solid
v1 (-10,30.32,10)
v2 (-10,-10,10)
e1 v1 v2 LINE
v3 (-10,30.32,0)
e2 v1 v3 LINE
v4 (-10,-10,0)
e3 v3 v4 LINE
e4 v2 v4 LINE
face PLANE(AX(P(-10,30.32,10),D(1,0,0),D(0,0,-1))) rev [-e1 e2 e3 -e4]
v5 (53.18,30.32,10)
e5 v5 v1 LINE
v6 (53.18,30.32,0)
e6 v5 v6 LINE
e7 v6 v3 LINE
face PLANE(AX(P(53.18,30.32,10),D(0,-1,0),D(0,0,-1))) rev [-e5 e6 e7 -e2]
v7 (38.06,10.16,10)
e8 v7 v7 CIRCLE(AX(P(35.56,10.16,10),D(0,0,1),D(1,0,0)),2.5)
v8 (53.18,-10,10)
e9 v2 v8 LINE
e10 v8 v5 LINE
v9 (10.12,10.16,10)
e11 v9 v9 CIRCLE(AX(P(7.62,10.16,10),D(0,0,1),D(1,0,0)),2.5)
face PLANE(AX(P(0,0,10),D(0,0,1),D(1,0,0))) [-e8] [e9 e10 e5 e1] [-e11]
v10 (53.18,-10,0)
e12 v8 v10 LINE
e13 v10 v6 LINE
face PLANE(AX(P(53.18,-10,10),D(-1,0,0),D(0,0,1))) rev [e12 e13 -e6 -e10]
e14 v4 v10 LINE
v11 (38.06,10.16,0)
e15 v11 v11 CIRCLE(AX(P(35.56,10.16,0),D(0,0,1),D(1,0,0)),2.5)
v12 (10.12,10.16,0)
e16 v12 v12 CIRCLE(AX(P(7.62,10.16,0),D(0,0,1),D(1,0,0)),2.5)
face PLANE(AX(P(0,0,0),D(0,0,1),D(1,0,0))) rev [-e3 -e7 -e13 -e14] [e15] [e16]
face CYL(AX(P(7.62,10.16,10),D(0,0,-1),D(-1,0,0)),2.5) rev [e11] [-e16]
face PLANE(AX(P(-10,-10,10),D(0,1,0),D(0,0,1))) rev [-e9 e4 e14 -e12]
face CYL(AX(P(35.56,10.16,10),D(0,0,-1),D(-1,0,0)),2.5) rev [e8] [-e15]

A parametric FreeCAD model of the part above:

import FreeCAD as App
import Part
import Sketcher

V = App.Vector


def add_polygon(sketch, points):
    """Adds a closed chain of lines whose ends are joined by coincident constraints."""
    first, n = sketch.GeometryCount, len(points)
    for a, b in zip(points, points[1:] + points[:1]):
        sketch.addGeometry(Part.LineSegment(App.Vector(*a, 0), App.Vector(*b, 0)), False)
    for i in range(n):
        sketch.addConstraint(Sketcher.Constraint("Coincident", first + i, 2, first + (i + 1) % n, 1))

doc = App.newDocument("Part")
body = doc.addObject("PartDesign::Body", "Body")

# Sketch on XY plane
sketch1 = body.newObject("Sketcher::SketchObject", "Sketch")
sketch1.AttachmentSupport = (doc.getObject("XY_Plane"), [""])
sketch1.MapMode = "FlatFace"
add_polygon(sketch1, [(-10, 30.3), (-10, -10), (53.2, -10), (53.2, 30.3)])  # lines 0-3
sketch1.addGeometry(Part.Circle(V(7.6, 10.2, 0), V(0, 0, 1), 2.5), False)  # 4
sketch1.addGeometry(Part.Circle(V(35.6, 10.2, 0), V(0, 0, 1), 2.5), False)  # 5
sketch1.addConstraint([
    Sketcher.Constraint("Vertical", 0),
    Sketcher.Constraint("Horizontal", 1),
    Sketcher.Constraint("Vertical", 2),
    Sketcher.Constraint("Horizontal", 3),
    Sketcher.Constraint("Equal", 4, 5),
    Sketcher.Constraint("Horizontal", 4, 3, 5, 3),
    Sketcher.Constraint("Diameter", 4, 5.0),
    Sketcher.Constraint("DistanceX", 0, 2, -1, 1, 10.0),
    Sketcher.Constraint("DistanceY", 0, 2, -1, 1, 10.0),
    Sketcher.Constraint("DistanceX", 1, 1, 1, 2, 63.18),
    Sketcher.Constraint("DistanceY", 0, 2, 0, 1, 40.32),
    Sketcher.Constraint("DistanceX", -1, 1, 4, 3, 7.62),
    Sketcher.Constraint("DistanceY", -1, 1, 4, 3, 10.16),
    Sketcher.Constraint("DistanceX", -1, 1, 5, 3, 35.56),
])
pad1 = body.newObject("PartDesign::Pad", "Pad")
pad1.Profile = sketch1
pad1.Length = 10

doc.recompute()
